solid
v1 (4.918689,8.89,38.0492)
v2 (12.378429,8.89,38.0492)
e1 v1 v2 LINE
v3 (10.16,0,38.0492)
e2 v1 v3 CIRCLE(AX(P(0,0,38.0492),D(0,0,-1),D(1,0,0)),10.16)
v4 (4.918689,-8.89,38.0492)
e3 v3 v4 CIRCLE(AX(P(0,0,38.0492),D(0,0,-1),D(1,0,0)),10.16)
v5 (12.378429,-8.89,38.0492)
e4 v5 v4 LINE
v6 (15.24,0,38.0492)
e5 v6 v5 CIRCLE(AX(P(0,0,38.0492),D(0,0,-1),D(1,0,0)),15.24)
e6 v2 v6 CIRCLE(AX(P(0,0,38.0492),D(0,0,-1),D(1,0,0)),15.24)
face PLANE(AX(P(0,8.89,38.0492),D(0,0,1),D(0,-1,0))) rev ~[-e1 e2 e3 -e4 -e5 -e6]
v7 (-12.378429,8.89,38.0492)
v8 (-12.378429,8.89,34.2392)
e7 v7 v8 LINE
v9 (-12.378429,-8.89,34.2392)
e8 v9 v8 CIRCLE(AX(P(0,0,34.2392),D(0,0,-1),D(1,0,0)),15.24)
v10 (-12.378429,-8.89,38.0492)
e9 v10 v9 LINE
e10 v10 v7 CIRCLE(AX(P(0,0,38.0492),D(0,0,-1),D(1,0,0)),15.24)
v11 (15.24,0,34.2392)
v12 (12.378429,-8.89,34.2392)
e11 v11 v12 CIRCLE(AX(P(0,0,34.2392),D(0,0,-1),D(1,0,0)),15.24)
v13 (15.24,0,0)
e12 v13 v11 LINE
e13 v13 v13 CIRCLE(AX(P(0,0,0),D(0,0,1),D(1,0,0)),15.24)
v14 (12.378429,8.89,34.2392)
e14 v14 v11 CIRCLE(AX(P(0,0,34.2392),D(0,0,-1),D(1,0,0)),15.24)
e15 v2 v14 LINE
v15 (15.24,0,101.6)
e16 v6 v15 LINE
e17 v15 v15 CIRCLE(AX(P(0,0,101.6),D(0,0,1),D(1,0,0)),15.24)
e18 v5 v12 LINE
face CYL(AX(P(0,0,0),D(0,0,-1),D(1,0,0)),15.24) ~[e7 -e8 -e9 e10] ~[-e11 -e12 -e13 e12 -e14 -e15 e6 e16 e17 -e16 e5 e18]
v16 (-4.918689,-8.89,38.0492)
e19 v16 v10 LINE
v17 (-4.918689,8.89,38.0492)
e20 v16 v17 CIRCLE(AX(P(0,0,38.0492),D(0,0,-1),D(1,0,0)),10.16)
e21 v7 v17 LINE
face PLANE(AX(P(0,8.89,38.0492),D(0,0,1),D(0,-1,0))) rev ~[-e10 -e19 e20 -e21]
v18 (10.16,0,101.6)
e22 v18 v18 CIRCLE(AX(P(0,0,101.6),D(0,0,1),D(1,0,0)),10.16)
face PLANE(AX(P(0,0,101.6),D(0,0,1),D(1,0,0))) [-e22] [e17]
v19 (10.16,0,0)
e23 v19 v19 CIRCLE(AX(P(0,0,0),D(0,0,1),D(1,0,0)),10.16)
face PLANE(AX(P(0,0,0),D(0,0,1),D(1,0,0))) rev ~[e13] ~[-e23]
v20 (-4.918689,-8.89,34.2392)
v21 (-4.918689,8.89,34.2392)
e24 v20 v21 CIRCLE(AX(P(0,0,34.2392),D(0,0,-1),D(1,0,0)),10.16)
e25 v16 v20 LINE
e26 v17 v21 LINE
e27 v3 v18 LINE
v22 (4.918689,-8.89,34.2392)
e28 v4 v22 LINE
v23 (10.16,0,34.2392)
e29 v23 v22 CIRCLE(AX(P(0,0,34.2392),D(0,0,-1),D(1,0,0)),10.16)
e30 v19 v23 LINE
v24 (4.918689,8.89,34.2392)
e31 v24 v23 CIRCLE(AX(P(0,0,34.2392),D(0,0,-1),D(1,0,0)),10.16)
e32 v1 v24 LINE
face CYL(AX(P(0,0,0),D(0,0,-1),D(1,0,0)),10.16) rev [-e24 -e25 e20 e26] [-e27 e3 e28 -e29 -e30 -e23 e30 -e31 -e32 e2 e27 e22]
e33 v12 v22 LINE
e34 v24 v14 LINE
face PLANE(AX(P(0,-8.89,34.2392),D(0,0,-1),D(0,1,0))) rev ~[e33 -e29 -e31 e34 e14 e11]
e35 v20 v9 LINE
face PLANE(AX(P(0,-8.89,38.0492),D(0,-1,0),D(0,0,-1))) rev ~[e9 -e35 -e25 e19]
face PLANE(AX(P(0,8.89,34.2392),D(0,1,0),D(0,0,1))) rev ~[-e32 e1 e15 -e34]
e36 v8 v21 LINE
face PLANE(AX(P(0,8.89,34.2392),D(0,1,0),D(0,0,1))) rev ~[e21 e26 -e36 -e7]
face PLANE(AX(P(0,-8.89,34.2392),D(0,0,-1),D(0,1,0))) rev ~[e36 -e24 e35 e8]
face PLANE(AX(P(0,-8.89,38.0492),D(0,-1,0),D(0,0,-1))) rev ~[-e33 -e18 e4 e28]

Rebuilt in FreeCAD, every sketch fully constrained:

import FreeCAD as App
import Part
import Sketcher

V = App.Vector
Q = App.Units.Quantity


def add_polygon(sketch, points):
    """Adds a closed chain of lines whose ends are joined by coincident constraints."""
    first, n = sketch.GeometryCount, len(points)
    for a, b in zip(points, points[1:] + points[:1]):
        sketch.addGeometry(Part.LineSegment(App.Vector(*a, 0), App.Vector(*b, 0)), False)
    for i in range(n):
        sketch.addConstraint(Sketcher.Constraint("Coincident", first + i, 2, first + (i + 1) % n, 1))

doc = App.newDocument("Part")
body = doc.addObject("PartDesign::Body", "Body")

# Sketch on XY plane
sketch1 = body.newObject("Sketcher::SketchObject", "Sketch")
sketch1.AttachmentSupport = (doc.getObject("XY_Plane"), [""])
sketch1.MapMode = "FlatFace"
sketch1.addGeometry(Part.Circle(V(0, 0, 0), V(0, 0, 1), 15.24), False)
sketch1.addGeometry(Part.Circle(V(0, 0, 0), V(0, 0, 1), 10.16), False)
sketch1.addConstraint(Sketcher.Constraint("Coincident", 0, 3, -1, 1))
sketch1.addConstraint(Sketcher.Constraint("Coincident", 1, 3, -1, 1))
sketch1.addConstraint(Sketcher.Constraint("Diameter", 0, Q("1.2 in")))
sketch1.addConstraint(Sketcher.Constraint("Diameter", 1, Q("0.8 in")))
pad1 = body.newObject("PartDesign::Pad", "Pad")
pad1.Profile = sketch1
pad1.Length = Q("4 in")
body2 = doc.addObject("PartDesign::Body", "Body001")

# Sketch on YZ plane
sketch2 = body2.newObject("Sketcher::SketchObject", "Sketch001")
sketch2.AttachmentSupport = (doc.getObject("YZ_Plane001"), [""])
sketch2.MapMode = "FlatFace"
add_polygon(sketch2, [(-8.89, 34.2392), (8.89, 34.2392), (8.89, 38.0492), (-8.89, 38.0492)])  # lines 0-3
sketch2.addConstraint(Sketcher.Constraint("Horizontal", 0))
sketch2.addConstraint(Sketcher.Constraint("Vertical", 1))
sketch2.addConstraint(Sketcher.Constraint("Horizontal", 2))
sketch2.addConstraint(Sketcher.Constraint("Vertical", 3))
sketch2.addConstraint(Sketcher.Constraint("DistanceX", 0, 1, 0, 2, Q("0.7 in")))
sketch2.addConstraint(Sketcher.Constraint("DistanceY", 1, 1, 1, 2, Q("0.15 in")))
sketch2.addConstraint(Sketcher.Constraint("DistanceX", -1, 1, 0, 2, Q("0.35 in")))
sketch2.addConstraint(Sketcher.Constraint("DistanceY", -1, 1, 0, 2, Q("1.348 in")))
pad2 = body2.newObject("PartDesign::Pad", "Pad001")
pad2.Profile = sketch2
pad2.Length = Q("3 in")
pad2.Midplane = True
doc.recompute()

boolean = body.newObject("PartDesign::Boolean", "Boolean")
boolean.Type = "Cut"
boolean.addObjects([body2])

doc.recompute()
